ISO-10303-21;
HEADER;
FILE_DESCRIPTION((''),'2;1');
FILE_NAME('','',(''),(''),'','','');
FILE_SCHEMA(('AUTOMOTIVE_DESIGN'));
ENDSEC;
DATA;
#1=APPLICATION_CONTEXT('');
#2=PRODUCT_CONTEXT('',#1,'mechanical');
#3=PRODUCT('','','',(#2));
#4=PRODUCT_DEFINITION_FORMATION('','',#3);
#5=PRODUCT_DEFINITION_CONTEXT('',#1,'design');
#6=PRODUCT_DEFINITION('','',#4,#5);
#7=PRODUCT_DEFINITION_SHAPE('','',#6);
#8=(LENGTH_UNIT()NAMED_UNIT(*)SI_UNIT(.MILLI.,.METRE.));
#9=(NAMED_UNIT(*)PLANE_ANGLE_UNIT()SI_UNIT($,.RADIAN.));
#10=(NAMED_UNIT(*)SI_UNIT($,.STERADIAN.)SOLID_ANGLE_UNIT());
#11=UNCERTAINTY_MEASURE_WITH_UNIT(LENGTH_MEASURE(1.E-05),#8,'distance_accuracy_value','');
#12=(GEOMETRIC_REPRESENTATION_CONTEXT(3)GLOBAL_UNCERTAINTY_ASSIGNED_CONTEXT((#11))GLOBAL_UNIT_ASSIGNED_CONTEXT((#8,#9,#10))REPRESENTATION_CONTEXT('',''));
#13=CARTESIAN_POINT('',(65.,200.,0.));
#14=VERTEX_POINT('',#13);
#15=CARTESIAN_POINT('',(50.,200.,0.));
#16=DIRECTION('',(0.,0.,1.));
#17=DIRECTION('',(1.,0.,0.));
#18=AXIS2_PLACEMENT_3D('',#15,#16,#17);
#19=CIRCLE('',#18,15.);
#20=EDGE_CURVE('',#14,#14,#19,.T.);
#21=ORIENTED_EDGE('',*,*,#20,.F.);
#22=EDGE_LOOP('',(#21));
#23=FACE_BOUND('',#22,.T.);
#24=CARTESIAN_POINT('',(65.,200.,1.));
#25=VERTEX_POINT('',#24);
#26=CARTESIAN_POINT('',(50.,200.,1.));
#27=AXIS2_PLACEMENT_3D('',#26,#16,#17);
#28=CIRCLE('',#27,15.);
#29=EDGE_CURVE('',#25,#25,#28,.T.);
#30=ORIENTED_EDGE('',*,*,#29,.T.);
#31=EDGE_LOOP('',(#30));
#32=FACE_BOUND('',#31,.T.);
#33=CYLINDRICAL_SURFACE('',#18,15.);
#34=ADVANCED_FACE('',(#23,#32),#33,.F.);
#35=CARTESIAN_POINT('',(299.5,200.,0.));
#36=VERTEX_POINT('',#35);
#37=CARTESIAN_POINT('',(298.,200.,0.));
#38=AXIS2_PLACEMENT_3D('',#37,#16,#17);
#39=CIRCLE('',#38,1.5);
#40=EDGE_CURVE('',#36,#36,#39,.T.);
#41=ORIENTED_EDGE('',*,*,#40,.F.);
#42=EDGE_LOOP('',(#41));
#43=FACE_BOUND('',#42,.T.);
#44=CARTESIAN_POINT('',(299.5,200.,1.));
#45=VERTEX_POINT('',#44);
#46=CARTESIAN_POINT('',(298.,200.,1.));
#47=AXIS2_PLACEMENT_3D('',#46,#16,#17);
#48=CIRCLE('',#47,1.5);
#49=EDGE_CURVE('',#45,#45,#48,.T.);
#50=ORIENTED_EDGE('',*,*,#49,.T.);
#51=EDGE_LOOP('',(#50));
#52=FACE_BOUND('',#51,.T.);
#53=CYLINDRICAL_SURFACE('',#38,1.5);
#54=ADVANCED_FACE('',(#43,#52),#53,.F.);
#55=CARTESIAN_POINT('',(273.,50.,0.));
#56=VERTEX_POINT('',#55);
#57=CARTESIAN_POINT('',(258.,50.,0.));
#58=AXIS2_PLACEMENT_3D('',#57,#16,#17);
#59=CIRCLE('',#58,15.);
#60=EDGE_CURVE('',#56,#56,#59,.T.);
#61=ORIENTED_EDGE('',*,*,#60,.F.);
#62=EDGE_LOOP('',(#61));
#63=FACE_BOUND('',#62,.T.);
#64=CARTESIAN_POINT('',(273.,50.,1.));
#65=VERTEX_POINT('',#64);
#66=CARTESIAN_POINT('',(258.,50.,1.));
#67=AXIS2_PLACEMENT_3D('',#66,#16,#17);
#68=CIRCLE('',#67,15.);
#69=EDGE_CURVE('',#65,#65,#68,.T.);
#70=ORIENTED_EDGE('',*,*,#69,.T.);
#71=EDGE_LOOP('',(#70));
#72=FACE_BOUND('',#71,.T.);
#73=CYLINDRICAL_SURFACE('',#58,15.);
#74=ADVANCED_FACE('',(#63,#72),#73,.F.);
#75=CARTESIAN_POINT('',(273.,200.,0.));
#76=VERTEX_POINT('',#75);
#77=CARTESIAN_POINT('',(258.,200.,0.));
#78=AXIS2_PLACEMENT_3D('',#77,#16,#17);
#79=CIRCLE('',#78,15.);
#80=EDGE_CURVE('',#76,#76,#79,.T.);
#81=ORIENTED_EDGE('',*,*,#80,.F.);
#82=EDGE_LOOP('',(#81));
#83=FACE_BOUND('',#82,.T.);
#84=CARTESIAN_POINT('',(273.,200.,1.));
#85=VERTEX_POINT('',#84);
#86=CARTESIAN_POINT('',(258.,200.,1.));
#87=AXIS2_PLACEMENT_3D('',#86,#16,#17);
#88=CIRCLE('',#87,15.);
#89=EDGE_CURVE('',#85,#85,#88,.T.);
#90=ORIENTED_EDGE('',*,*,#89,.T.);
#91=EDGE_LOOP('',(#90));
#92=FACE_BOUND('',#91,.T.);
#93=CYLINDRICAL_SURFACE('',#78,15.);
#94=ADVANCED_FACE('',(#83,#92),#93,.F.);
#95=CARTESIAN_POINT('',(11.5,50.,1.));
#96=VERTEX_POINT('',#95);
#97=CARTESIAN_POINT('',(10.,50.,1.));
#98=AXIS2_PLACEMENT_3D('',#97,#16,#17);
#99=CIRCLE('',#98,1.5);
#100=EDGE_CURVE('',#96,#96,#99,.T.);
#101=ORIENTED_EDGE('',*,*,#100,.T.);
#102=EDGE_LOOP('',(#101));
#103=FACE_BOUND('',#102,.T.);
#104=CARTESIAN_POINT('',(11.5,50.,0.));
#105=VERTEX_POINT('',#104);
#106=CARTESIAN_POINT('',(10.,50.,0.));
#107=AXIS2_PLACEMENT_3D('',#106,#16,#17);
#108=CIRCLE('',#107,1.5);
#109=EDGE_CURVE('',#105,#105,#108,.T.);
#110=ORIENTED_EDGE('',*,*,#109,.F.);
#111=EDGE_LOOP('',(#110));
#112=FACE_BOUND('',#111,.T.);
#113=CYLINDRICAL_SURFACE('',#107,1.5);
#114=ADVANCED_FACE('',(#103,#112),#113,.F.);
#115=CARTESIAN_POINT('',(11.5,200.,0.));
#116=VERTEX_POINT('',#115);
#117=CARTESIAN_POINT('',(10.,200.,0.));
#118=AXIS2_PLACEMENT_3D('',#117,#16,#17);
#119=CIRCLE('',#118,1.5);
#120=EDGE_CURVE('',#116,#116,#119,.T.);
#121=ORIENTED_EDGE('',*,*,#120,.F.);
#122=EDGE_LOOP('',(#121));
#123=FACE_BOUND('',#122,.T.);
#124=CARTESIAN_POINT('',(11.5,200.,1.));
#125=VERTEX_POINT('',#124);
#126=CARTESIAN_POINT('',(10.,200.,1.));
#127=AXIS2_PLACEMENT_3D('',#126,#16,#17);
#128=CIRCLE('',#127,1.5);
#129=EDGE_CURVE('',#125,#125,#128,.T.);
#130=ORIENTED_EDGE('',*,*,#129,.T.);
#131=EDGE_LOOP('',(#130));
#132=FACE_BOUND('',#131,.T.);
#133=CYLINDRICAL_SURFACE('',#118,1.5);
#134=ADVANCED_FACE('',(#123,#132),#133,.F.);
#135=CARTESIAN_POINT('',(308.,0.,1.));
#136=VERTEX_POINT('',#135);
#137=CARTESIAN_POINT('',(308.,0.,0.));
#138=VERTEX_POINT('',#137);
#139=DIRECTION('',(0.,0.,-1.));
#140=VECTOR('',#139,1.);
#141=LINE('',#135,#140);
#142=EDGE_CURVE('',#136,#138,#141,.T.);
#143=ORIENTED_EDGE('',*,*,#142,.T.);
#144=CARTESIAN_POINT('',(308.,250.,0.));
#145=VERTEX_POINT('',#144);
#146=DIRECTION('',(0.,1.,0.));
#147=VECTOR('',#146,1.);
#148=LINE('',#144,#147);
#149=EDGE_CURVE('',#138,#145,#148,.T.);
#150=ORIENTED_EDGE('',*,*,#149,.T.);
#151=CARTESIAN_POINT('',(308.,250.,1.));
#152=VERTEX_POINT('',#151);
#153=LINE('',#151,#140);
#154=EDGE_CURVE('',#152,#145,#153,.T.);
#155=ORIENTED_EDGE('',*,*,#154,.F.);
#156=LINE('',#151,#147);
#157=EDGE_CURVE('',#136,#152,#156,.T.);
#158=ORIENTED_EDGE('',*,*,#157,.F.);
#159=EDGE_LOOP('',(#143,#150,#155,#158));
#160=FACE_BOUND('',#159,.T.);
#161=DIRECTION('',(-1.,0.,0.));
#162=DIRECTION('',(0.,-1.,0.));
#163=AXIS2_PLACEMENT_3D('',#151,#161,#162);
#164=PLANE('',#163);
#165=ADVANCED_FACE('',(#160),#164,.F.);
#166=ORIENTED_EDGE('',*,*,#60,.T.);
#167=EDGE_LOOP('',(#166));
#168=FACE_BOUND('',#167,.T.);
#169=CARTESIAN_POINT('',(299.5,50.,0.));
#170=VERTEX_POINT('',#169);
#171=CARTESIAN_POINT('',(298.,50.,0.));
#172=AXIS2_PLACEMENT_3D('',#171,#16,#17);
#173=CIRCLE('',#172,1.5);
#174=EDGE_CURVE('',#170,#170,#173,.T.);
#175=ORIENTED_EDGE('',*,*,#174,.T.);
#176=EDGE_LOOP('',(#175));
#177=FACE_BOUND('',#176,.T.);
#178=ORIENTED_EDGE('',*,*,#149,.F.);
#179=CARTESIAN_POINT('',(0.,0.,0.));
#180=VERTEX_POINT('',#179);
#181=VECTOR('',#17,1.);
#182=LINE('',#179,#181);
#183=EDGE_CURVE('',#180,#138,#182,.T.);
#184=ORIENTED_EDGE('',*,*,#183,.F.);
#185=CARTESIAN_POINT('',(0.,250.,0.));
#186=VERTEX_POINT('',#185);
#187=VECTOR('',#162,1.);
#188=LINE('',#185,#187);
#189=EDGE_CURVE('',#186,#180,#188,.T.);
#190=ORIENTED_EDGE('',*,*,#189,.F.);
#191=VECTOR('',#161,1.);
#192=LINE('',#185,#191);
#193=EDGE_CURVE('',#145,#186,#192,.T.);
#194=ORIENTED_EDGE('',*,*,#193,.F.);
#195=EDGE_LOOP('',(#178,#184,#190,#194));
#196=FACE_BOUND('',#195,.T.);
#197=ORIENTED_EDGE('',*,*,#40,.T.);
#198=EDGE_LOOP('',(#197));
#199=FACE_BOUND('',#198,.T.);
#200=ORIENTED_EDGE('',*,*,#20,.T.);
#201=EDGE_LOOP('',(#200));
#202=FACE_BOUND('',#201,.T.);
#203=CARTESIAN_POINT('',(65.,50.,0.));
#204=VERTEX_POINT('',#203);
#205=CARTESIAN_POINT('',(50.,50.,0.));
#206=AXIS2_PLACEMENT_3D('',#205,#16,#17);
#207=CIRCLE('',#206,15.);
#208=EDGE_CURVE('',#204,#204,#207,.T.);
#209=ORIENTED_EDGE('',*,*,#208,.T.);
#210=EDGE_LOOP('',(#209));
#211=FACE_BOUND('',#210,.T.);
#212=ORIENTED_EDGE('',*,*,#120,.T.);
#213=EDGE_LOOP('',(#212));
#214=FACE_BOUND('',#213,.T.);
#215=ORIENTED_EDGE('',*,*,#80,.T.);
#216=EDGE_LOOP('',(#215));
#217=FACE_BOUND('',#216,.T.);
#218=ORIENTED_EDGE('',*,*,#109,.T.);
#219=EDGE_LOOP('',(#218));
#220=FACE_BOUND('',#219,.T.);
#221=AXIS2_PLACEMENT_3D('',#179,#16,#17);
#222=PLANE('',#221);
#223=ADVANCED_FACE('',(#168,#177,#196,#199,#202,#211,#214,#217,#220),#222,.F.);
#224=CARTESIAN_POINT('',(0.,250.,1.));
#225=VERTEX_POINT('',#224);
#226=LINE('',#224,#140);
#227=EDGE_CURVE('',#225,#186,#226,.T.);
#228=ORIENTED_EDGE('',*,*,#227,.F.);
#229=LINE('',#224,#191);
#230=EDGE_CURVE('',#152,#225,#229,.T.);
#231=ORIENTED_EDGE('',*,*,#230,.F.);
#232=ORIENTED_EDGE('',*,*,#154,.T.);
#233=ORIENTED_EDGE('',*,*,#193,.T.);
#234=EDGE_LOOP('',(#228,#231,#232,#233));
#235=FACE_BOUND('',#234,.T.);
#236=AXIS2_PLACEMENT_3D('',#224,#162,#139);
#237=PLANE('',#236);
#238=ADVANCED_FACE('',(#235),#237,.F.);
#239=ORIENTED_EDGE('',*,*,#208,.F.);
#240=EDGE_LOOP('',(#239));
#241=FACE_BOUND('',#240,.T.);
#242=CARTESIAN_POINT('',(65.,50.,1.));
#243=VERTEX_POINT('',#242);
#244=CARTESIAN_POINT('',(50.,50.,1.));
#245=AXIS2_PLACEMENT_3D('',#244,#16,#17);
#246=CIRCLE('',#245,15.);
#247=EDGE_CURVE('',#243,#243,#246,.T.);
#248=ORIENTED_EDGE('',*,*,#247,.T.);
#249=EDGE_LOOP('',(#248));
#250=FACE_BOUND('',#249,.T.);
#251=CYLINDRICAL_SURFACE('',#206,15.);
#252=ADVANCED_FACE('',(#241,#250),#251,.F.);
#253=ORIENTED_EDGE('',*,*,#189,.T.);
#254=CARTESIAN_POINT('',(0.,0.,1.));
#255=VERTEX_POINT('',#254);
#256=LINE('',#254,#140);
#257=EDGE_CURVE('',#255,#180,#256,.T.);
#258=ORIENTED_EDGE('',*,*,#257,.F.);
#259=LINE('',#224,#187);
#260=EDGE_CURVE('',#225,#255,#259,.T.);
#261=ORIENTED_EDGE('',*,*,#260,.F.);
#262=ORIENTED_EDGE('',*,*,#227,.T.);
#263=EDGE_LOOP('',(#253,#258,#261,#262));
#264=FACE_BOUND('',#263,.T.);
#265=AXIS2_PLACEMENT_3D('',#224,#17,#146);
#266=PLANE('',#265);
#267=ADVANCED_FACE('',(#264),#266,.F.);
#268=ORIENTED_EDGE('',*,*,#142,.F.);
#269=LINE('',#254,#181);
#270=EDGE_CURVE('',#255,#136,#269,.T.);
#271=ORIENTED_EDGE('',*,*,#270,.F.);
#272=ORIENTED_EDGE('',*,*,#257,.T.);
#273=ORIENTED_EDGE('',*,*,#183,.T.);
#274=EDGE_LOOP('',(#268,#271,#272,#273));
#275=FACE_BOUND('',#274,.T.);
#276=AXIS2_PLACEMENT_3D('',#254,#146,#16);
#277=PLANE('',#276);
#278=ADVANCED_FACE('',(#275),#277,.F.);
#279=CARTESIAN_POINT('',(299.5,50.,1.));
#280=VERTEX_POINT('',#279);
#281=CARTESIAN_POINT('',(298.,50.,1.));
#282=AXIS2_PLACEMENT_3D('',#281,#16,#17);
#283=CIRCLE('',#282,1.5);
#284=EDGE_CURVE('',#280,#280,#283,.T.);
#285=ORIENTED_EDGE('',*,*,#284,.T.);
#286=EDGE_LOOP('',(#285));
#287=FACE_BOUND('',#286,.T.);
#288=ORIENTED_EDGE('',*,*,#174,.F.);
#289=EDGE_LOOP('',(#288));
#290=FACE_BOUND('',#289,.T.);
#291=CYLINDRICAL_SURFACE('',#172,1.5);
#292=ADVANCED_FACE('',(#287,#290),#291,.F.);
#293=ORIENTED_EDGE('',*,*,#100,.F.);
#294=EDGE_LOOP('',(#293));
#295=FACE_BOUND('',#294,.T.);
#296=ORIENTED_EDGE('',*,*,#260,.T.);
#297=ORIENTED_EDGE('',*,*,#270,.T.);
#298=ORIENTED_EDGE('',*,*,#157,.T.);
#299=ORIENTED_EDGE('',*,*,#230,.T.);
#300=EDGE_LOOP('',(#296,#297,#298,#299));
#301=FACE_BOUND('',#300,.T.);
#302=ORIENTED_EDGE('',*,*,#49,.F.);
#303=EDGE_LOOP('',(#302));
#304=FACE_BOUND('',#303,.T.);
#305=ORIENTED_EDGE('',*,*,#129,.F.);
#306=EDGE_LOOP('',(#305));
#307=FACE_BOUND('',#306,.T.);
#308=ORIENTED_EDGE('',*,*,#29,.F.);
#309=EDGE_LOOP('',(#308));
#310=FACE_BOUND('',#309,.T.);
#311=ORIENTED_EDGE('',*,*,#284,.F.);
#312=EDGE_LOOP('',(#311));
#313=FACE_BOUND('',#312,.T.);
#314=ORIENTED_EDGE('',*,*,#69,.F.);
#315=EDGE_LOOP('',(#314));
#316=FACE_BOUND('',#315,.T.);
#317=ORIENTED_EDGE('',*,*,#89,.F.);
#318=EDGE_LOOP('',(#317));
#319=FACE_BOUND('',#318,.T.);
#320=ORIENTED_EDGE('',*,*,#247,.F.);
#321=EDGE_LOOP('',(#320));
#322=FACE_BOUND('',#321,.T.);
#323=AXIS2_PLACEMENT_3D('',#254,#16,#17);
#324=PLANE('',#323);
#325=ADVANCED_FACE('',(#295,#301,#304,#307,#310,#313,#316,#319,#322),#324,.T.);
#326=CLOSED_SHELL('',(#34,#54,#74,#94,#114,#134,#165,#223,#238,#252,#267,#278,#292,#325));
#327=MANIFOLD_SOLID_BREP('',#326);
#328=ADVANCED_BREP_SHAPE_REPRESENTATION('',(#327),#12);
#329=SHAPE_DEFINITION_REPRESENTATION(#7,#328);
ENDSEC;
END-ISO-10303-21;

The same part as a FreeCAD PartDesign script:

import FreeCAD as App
import Part
import Sketcher

V = App.Vector
Q = App.Units.Quantity


def add_polygon(sketch, points):
    """Adds a closed chain of lines whose ends are joined by coincident constraints."""
    first, n = sketch.GeometryCount, len(points)
    for a, b in zip(points, points[1:] + points[:1]):
        sketch.addGeometry(Part.LineSegment(App.Vector(*a, 0), App.Vector(*b, 0)), False)
    for i in range(n):
        sketch.addConstraint(Sketcher.Constraint("Coincident", first + i, 2, first + (i + 1) % n, 1))

doc = App.newDocument("Part")
body = doc.addObject("PartDesign::Body", "Body")

sketch1 = doc.addObject("Sketcher::SketchObject", "Sketch")
body.addObject(sketch1)
sketch1.AttachmentSupport = (doc.XY_Plane, [""])
sketch1.MapMode = "FlatFace"
add_polygon(sketch1, [(0, 250), (0, 0), (308, 0), (308, 250)])
sketch1.addConstraint([
    Sketcher.Constraint("Vertical", 0),
    Sketcher.Constraint("Horizontal", 1),
    Sketcher.Constraint("Vertical", 2),
    Sketcher.Constraint("Horizontal", 3),
    Sketcher.Constraint("Coincident", 0, 2, -1, 1),
    Sketcher.Constraint("DistanceX", 1, 1, 1, 2, Q("308 mm")),
    Sketcher.Constraint("DistanceY", 0, 2, 0, 1, Q("250 mm")),
])
pad1 = doc.addObject("PartDesign::Pad", "Pad")
body.addObject(pad1)
pad1.Profile = sketch1
pad1.Length = 1

sketch2 = doc.addObject("Sketcher::SketchObject", "Sketch001")
body.addObject(sketch2)
sketch2.AttachmentSupport = (doc.XY_Plane, [""])
sketch2.MapMode = "FlatFace"
sketch2.AttachmentOffset = App.Placement(V(0, 0, 1), App.Rotation())
sketch2.addGeometry([
    Part.Circle(V(10, 200, 0), V(0, 0, 1), 1.5),
    Part.Circle(V(298, 200, 0), V(0, 0, 1), 1.5),
], False)
sketch2.addConstraint([
    Sketcher.Constraint("Equal", 0, 1),
    Sketcher.Constraint("Horizontal", 0, 3, 1, 3),
    Sketcher.Constraint("Diameter", 0, Q("3 mm")),
    Sketcher.Constraint("DistanceX", -1, 1, 0, 3, Q("10 mm")),
    Sketcher.Constraint("DistanceY", -1, 1, 0, 3, Q("200 mm")),
    Sketcher.Constraint("DistanceX", -1, 1, 1, 3, Q("298 mm")),
])
pocket1 = doc.addObject("PartDesign::Pocket", "Pocket")
body.addObject(pocket1)
pocket1.Profile = sketch2
pocket1.Type = "ThroughAll"
doc.recompute()

linearpattern = doc.addObject("PartDesign::LinearPattern", "LinearPattern")
body.addObject(linearpattern)
linearpattern.Originals = [pocket1]
linearpattern.Direction = (doc.Y_Axis, [""])
linearpattern.Mode = "offset"
linearpattern.Offset = 150
linearpattern.Occurrences = 2
linearpattern.Reversed = True
body.Tip = linearpattern

sketch3 = doc.addObject("Sketcher::SketchObject", "Sketch002")
body.addObject(sketch3)
sketch3.AttachmentSupport = (doc.XY_Plane, [""])
sketch3.MapMode = "FlatFace"
sketch3.AttachmentOffset = App.Placement(V(0, 0, 1), App.Rotation())
sketch3.addGeometry([
    Part.Circle(V(50, 200, 0), V(0, 0, 1), 15),
    Part.Circle(V(258, 200, 0), V(0, 0, 1), 15),
    Part.Circle(V(50, 50, 0), V(0, 0, 1), 15),
    Part.Circle(V(258, 50, 0), V(0, 0, 1), 15),
], False)
sketch3.addConstraint([
    Sketcher.Constraint("Equal", 0, 1),
    Sketcher.Constraint("Equal", 1, 2),
    Sketcher.Constraint("Equal", 2, 3),
    Sketcher.Constraint("Horizontal", 0, 3, 1, 3),
    Sketcher.Constraint("Horizontal", 2, 3, 3, 3),
    Sketcher.Constraint("Vertical", 0, 3, 2, 3),
    Sketcher.Constraint("Vertical", 1, 3, 3, 3),
    Sketcher.Constraint("Diameter", 0, Q("30 mm")),
    Sketcher.Constraint("DistanceX", -1, 1, 0, 3, Q("50 mm")),
    Sketcher.Constraint("DistanceY", -1, 1, 0, 3, Q("200 mm")),
    Sketcher.Constraint("DistanceX", -1, 1, 1, 3, Q("258 mm")),
    Sketcher.Constraint("DistanceY", -1, 1, 2, 3, Q("50 mm")),
])
pocket2 = doc.addObject("PartDesign::Pocket", "Pocket001")
body.addObject(pocket2)
pocket2.Profile = sketch3
pocket2.Type = "ThroughAll"

doc.recompute()
